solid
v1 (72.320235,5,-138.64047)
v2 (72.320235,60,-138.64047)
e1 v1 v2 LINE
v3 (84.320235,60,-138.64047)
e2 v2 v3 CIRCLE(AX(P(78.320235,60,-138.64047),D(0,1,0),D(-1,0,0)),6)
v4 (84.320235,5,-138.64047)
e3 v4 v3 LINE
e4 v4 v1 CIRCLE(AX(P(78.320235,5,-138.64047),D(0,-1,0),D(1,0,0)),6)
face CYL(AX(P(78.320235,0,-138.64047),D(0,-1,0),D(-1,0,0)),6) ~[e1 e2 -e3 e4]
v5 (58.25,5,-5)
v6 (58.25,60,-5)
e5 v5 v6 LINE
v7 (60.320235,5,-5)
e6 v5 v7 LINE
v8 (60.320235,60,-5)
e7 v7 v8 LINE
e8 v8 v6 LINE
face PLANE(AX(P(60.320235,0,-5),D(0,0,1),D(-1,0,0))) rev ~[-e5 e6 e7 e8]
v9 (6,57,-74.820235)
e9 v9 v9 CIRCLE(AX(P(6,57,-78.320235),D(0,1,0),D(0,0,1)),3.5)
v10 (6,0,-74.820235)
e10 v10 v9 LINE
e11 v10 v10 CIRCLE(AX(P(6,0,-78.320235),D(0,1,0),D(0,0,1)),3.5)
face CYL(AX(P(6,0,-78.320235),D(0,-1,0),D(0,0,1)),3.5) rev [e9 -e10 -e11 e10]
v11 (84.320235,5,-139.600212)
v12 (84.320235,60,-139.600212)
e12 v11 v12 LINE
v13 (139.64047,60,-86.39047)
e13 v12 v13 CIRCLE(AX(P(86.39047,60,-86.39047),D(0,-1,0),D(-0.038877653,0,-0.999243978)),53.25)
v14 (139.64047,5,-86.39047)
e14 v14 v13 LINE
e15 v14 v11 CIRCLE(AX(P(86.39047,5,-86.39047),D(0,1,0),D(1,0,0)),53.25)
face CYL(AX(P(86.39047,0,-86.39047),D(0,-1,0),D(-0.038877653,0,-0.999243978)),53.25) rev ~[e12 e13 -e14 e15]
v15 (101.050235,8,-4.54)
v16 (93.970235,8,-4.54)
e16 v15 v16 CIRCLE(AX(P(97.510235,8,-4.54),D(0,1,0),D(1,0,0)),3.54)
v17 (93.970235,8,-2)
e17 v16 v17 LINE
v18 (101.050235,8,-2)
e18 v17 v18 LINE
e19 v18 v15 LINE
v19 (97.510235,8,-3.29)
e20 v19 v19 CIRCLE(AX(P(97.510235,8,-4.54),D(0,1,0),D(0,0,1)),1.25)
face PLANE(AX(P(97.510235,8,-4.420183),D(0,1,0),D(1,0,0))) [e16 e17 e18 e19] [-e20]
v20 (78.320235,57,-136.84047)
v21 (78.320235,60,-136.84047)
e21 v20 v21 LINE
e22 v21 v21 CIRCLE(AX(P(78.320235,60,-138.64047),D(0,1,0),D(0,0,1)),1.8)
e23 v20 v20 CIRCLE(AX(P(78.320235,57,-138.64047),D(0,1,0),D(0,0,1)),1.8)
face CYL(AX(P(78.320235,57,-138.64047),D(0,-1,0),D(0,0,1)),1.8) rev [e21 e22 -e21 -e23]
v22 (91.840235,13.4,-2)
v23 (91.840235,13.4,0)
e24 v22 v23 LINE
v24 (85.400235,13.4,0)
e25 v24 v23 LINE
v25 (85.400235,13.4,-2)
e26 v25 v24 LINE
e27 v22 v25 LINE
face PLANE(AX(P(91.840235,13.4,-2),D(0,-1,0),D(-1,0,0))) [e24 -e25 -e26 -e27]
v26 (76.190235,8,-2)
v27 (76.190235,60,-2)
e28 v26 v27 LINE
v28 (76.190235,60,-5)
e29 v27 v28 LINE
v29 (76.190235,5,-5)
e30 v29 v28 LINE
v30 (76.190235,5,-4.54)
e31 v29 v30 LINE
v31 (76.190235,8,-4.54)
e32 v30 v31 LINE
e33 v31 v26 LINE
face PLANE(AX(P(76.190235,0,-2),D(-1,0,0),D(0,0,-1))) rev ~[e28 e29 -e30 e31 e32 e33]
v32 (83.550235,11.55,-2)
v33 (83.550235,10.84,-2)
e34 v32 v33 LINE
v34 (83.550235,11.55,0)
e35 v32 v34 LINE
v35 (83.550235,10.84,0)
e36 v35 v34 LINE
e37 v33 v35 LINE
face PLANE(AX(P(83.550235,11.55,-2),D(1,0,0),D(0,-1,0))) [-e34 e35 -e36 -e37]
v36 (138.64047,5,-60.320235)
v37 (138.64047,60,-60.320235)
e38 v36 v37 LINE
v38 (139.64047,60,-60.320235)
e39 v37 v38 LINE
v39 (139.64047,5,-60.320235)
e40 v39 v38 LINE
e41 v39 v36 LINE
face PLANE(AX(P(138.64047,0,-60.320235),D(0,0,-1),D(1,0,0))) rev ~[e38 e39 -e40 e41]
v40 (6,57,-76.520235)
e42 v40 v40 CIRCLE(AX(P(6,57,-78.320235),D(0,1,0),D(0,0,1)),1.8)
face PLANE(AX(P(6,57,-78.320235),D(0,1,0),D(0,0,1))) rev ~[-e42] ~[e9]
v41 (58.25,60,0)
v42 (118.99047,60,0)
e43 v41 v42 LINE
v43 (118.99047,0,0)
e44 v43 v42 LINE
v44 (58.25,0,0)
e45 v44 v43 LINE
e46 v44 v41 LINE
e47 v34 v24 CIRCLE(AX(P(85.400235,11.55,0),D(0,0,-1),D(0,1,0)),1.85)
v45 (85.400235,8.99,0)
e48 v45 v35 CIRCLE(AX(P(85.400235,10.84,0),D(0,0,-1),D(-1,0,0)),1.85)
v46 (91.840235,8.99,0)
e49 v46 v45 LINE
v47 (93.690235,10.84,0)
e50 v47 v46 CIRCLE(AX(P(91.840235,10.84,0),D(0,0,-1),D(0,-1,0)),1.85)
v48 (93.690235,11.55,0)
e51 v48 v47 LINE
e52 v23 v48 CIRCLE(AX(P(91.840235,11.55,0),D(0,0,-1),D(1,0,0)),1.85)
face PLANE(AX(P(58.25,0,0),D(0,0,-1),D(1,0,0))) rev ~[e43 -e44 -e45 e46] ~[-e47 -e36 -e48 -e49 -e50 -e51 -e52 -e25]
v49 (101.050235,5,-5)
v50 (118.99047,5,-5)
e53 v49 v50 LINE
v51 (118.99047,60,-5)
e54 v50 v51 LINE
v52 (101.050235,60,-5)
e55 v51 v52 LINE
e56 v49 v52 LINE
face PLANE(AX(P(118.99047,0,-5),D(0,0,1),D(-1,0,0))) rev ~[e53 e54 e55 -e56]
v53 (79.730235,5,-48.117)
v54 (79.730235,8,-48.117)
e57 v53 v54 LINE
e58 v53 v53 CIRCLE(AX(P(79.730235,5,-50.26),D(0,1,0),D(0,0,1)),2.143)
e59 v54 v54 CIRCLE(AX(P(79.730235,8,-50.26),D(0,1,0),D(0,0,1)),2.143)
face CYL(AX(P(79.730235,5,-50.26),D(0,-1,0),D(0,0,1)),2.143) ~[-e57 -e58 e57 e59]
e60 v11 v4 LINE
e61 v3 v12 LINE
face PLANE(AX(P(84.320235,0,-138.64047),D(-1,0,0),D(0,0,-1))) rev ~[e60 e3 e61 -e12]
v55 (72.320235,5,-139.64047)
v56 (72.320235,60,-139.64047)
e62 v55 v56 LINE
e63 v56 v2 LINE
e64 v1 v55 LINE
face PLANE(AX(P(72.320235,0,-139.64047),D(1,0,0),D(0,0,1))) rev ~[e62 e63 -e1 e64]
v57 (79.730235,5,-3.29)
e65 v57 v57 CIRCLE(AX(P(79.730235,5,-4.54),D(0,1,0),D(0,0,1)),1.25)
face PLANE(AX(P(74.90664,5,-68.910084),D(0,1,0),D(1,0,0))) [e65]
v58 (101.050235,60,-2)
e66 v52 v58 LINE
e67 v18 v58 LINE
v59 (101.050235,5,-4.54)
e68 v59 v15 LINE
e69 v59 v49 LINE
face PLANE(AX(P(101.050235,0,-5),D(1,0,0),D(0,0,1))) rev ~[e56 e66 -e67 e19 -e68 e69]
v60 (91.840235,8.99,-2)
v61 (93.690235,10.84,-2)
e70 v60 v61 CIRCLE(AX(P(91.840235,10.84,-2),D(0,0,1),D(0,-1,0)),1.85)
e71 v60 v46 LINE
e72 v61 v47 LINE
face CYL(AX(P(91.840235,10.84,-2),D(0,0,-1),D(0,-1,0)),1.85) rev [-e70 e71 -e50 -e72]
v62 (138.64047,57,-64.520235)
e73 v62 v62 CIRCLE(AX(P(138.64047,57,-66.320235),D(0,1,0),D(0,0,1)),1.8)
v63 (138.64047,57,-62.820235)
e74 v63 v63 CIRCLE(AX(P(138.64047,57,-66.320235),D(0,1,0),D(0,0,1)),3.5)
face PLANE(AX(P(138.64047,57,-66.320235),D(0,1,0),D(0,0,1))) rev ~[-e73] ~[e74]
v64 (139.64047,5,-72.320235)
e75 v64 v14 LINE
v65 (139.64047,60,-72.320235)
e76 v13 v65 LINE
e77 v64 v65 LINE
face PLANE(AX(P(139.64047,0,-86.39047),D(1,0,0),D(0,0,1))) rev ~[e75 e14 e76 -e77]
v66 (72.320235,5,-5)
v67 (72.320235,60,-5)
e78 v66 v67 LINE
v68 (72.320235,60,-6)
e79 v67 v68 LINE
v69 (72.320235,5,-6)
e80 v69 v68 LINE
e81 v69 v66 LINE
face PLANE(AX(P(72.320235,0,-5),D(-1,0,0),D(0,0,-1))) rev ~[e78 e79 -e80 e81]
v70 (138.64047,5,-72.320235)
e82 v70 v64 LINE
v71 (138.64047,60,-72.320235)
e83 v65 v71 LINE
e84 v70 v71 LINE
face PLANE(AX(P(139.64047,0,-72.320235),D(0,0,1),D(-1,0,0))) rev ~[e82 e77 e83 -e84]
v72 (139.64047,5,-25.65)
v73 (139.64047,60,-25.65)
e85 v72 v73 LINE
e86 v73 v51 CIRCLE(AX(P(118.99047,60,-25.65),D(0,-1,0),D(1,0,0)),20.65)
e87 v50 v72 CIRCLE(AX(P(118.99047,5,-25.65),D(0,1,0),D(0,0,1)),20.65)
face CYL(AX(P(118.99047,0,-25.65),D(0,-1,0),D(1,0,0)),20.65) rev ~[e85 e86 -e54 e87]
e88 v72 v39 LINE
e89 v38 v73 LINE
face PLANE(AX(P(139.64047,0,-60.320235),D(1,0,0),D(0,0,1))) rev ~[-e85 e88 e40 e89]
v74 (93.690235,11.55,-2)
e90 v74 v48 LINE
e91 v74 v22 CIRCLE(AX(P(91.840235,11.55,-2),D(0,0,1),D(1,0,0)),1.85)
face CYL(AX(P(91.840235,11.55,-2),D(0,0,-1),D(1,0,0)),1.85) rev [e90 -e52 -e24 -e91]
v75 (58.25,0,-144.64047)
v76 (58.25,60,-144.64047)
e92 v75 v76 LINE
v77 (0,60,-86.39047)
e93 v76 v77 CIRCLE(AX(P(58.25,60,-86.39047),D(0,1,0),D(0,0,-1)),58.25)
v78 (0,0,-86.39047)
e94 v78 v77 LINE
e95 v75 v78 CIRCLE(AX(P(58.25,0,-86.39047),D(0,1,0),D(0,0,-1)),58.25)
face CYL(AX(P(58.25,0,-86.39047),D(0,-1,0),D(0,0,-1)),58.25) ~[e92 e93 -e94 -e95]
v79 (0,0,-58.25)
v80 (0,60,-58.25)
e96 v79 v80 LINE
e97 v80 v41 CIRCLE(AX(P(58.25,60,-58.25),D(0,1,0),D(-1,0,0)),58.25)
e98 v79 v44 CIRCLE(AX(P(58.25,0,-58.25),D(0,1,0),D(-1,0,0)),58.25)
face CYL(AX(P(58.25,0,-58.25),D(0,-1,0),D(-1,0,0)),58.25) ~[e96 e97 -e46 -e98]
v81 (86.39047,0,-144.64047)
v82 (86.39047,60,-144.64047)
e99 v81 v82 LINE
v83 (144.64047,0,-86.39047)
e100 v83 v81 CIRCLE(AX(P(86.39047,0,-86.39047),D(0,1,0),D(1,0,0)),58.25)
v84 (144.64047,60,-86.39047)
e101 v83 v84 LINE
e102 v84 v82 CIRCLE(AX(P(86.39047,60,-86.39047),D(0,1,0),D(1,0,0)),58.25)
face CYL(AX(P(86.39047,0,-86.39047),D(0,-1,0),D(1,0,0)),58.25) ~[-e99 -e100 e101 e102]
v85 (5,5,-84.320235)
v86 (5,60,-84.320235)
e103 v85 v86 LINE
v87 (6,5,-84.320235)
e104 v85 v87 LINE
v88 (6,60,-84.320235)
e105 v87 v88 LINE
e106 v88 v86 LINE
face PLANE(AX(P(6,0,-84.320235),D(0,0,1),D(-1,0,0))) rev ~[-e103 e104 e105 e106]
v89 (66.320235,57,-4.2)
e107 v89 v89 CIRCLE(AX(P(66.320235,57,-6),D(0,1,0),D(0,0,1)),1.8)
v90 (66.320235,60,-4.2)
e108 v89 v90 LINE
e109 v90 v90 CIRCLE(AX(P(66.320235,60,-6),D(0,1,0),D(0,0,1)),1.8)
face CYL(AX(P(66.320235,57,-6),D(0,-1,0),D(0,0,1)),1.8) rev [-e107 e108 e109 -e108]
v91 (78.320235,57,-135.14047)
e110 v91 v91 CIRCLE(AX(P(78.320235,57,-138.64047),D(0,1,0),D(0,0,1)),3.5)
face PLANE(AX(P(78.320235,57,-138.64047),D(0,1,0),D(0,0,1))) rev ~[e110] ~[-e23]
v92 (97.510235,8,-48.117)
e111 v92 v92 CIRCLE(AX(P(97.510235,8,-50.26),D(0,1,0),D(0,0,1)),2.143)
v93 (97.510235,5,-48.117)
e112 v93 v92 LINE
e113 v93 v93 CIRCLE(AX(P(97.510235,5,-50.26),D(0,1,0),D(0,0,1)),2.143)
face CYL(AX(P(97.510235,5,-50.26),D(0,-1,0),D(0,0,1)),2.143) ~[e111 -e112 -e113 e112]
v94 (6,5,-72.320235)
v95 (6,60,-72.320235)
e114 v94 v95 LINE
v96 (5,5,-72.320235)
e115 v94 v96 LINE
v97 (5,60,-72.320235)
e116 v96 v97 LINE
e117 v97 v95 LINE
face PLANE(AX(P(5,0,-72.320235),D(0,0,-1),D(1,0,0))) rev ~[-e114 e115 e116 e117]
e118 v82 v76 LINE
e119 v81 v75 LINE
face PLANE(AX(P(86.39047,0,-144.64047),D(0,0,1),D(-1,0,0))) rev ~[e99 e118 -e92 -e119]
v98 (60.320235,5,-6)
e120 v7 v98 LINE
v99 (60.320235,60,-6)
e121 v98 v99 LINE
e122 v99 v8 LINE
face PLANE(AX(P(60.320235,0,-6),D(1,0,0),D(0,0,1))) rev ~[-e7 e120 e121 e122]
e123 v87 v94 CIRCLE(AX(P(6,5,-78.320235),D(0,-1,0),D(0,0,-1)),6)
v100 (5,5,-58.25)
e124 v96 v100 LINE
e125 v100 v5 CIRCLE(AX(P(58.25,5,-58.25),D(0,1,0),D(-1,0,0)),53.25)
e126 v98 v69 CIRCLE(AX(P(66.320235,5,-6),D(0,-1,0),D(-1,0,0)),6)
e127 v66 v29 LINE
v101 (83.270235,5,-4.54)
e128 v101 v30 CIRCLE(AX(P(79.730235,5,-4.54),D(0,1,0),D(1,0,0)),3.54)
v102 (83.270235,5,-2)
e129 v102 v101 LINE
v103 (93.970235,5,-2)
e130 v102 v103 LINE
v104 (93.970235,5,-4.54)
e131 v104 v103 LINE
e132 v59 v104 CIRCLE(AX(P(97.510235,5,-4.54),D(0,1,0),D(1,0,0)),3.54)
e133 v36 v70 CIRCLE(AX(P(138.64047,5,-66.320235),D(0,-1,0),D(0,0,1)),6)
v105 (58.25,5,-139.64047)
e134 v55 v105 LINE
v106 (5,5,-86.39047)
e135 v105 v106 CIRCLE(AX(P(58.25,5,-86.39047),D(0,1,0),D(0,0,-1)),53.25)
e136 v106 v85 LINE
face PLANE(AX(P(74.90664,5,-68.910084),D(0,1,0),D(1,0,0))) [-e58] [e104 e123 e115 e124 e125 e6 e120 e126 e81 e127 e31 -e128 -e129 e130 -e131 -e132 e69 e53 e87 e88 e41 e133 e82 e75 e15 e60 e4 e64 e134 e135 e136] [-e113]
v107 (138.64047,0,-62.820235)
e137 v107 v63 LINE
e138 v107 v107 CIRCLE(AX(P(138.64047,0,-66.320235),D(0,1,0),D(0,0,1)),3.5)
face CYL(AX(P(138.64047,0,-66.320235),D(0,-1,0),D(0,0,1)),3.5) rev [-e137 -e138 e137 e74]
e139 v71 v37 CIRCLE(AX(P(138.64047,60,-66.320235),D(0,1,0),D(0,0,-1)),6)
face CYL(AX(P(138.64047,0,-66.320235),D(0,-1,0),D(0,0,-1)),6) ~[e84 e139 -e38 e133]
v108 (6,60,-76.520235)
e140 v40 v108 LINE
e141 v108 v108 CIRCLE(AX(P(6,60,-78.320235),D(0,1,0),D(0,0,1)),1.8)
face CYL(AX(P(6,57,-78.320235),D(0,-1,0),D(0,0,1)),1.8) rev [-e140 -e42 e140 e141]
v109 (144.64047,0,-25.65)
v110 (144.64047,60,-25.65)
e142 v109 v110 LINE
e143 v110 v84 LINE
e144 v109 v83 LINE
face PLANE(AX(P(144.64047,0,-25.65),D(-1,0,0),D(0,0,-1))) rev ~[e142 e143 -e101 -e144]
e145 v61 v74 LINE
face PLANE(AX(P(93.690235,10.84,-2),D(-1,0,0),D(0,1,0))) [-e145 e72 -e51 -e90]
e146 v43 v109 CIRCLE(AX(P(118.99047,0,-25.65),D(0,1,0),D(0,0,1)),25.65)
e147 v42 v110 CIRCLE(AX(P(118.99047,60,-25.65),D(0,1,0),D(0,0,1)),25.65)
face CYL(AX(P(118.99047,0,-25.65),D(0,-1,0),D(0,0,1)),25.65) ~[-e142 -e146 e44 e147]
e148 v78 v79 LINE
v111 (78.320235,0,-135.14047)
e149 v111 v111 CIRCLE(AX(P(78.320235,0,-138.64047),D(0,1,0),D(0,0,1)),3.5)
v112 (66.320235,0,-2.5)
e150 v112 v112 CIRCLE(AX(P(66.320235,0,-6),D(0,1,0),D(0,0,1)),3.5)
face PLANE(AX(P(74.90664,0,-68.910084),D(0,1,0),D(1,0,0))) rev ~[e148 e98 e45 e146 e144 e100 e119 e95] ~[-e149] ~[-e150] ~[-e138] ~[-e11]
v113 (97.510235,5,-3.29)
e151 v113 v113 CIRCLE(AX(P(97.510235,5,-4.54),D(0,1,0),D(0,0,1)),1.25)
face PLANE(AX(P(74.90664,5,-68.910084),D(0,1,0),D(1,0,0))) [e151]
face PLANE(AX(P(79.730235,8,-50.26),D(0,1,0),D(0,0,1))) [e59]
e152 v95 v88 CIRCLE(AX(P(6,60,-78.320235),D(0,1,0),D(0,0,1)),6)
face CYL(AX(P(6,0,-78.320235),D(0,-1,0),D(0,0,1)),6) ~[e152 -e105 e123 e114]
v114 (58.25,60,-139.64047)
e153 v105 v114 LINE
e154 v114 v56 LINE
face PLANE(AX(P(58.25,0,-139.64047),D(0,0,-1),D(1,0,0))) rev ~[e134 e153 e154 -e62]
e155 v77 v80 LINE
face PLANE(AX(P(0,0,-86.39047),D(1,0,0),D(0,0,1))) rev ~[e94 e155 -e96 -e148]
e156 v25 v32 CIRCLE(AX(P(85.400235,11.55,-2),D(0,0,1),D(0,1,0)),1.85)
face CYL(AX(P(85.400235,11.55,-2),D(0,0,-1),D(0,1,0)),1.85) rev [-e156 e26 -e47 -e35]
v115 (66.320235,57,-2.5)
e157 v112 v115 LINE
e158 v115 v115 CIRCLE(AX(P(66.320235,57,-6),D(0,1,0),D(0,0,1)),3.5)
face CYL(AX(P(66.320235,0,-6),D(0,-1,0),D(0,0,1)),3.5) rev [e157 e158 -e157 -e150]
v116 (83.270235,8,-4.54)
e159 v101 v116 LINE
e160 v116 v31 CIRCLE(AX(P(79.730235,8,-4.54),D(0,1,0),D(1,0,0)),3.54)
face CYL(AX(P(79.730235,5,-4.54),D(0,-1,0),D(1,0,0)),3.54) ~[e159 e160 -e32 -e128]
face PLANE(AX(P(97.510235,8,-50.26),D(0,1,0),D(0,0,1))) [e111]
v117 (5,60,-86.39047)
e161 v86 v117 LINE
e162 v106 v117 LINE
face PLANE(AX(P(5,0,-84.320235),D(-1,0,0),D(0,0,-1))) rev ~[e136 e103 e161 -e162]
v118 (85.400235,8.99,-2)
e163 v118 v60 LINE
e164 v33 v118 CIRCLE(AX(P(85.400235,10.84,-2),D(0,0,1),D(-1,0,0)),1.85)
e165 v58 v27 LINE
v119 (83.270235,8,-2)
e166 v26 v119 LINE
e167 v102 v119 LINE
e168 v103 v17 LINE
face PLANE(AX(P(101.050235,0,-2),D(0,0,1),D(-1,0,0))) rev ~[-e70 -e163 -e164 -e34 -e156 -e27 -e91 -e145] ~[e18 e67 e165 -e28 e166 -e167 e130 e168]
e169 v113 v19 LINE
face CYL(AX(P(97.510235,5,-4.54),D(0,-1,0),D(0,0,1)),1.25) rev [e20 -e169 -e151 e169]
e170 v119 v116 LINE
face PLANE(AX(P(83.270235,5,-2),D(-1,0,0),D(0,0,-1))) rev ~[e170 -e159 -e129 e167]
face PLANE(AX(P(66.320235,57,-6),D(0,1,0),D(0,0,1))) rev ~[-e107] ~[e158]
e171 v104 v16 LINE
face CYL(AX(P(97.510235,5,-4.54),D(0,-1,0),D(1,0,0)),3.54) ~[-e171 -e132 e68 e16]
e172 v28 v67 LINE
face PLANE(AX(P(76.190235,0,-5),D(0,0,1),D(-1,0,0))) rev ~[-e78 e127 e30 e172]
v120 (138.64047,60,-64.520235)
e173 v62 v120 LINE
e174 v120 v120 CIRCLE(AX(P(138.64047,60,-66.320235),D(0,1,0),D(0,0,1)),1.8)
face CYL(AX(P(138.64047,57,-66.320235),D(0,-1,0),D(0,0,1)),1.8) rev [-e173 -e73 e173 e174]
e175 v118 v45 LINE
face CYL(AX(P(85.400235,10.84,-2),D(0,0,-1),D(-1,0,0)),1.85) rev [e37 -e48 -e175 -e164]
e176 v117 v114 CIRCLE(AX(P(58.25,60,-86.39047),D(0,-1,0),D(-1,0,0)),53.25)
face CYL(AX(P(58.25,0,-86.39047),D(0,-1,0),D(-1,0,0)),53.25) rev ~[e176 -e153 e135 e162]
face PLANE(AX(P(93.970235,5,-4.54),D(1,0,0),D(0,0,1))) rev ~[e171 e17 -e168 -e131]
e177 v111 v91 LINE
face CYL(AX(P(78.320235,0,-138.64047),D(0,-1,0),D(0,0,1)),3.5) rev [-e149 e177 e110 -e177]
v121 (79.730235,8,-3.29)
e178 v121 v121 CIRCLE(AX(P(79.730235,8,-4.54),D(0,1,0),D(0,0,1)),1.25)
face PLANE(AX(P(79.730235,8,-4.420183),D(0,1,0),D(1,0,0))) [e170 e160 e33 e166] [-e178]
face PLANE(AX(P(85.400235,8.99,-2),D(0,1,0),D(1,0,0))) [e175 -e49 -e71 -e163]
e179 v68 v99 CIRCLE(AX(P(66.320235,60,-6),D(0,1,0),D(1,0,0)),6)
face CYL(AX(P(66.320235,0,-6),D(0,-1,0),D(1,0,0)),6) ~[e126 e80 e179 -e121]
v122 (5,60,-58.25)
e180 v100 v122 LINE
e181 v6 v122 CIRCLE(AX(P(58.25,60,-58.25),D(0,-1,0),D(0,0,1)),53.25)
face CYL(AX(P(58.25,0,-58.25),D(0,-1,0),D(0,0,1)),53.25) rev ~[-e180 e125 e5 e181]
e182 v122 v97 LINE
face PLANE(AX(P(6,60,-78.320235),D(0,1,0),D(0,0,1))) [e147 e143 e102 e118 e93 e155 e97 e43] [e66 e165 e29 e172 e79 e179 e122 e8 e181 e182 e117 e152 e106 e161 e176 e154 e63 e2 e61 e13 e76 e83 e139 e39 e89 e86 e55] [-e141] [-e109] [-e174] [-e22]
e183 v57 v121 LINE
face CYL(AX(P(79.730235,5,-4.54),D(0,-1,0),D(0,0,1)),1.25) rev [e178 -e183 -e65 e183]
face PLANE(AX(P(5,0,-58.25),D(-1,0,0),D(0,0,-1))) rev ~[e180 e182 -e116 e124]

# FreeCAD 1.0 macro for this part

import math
import FreeCAD as App
import Part
import Sketcher

doc = App.newDocument("Part")
body = doc.addObject("PartDesign::Body", "Body")

# Sketch on XZ plane
sketch1 = body.newObject("Sketcher::SketchObject", "Sketch")
sketch1.AttachmentSupport = (doc.getObject("XZ_Plane"), [""])
sketch1.MapMode = "FlatFace"
sketch1.addGeometry(Part.ArcOfCircle(Part.Circle(App.Vector(58.2, -58.2, 0), App.Vector(0, 0, 1), 58.2), math.radians(90), math.radians(180)), False)
sketch1.addGeometry(Part.LineSegment(App.Vector(58.2, 0, 0), App.Vector(119, 0, 0)), False)
sketch1.addGeometry(Part.ArcOfCircle(Part.Circle(App.Vector(119, -25.7, 0), App.Vector(0, 0, 1), 25.7), math.radians(0), math.radians(90)), False)
sketch1.addGeometry(Part.LineSegment(App.Vector(144.6, -25.6, 0), App.Vector(144.6, -86.4, 0)), False)
sketch1.addGeometry(Part.ArcOfCircle(Part.Circle(App.Vector(86.4, -86.4, 0), App.Vector(0, 0, 1), 58.2), math.radians(-90), math.radians(0)), False)
sketch1.addGeometry(Part.LineSegment(App.Vector(86.4, -144.6, 0), App.Vector(58.2, -144.6, 0)), False)
sketch1.addGeometry(Part.ArcOfCircle(Part.Circle(App.Vector(58.2, -86.4, 0), App.Vector(0, 0, 1), 58.2), math.radians(180), math.radians(270)), False)
sketch1.addGeometry(Part.LineSegment(App.Vector(0, -86.4, 0), App.Vector(0, -58.2, 0)), False)
sketch1.addGeometry(Part.Circle(App.Vector(66.3, -6, 0), App.Vector(0, 0, 1), 3.5), False)
sketch1.addGeometry(Part.LineSegment(App.Vector(5, -84.3, 0), App.Vector(5, -86.4, 0)), False)
sketch1.addGeometry(Part.ArcOfCircle(Part.Circle(App.Vector(58.3, -86.4, 0), App.Vector(0, 0, 1), 53.3), math.radians(-180), math.radians(-90)), False)
sketch1.addGeometry(Part.LineSegment(App.Vector(58.2, -139.6, 0), App.Vector(72.3, -139.6, 0)), False)
sketch1.addGeometry(Part.LineSegment(App.Vector(72.3, -139.6, 0), App.Vector(72.3, -138.6, 0)), False)
sketch1.addGeometry(Part.ArcOfCircle(Part.Circle(App.Vector(78.3, -138.6, 0), App.Vector(0, 0, 1), 6), math.radians(0), math.radians(180)), False)
sketch1.addGeometry(Part.LineSegment(App.Vector(84.3, -138.6, 0), App.Vector(84.3, -139.6, 0)), False)
sketch1.addGeometry(Part.ArcOfCircle(Part.Circle(App.Vector(86.4, -86.4, 0), App.Vector(0, 0, 1), 53.2), math.radians(-92), math.radians(0)), False)
sketch1.addGeometry(Part.LineSegment(App.Vector(139.6, -86.4, 0), App.Vector(139.6, -72.3, 0)), False)
sketch1.addGeometry(Part.LineSegment(App.Vector(139.6, -72.3, 0), App.Vector(138.6, -72.3, 0)), False)
sketch1.addGeometry(Part.ArcOfCircle(Part.Circle(App.Vector(138.6, -66.3, 0), App.Vector(0, 0, 1), 6), math.radians(90), math.radians(270)), False)
sketch1.addGeometry(Part.LineSegment(App.Vector(138.6, -60.3, 0), App.Vector(139.6, -60.3, 0)), False)
sketch1.addGeometry(Part.LineSegment(App.Vector(139.6, -60.3, 0), App.Vector(139.6, -25.6, 0)), False)
sketch1.addGeometry(Part.ArcOfCircle(Part.Circle(App.Vector(119, -25.6, 0), App.Vector(0, 0, 1), 20.6), math.radians(0), math.radians(90)), False)
sketch1.addGeometry(Part.LineSegment(App.Vector(119, -5, 0), App.Vector(101.1, -5, 0)), False)
sketch1.addGeometry(Part.LineSegment(App.Vector(101.1, -5, 0), App.Vector(101.1, -2, 0)), False)
sketch1.addGeometry(Part.LineSegment(App.Vector(101.1, -2, 0), App.Vector(76.2, -2, 0)), False)
sketch1.addGeometry(Part.LineSegment(App.Vector(76.2, -2, 0), App.Vector(76.2, -5, 0)), False)
sketch1.addGeometry(Part.LineSegment(App.Vector(76.2, -5, 0), App.Vector(72.3, -5, 0)), False)
sketch1.addGeometry(Part.LineSegment(App.Vector(72.3, -5, 0), App.Vector(72.3, -6, 0)), False)
sketch1.addGeometry(Part.ArcOfCircle(Part.Circle(App.Vector(66.3, -6, 0), App.Vector(0, 0, 1), 6), math.radians(180), math.radians(360)), False)
sketch1.addGeometry(Part.LineSegment(App.Vector(60.3, -6, 0), App.Vector(60.3, -5, 0)), False)
sketch1.addGeometry(Part.LineSegment(App.Vector(60.3, -5, 0), App.Vector(58.2, -5, 0)), False)
sketch1.addGeometry(Part.ArcOfCircle(Part.Circle(App.Vector(58.3, -58.3, 0), App.Vector(0, 0, 1), 53.3), math.radians(90), math.radians(180)), False)
sketch1.addGeometry(Part.LineSegment(App.Vector(5, -58.2, 0), App.Vector(5, -72.3, 0)), False)
sketch1.addGeometry(Part.LineSegment(App.Vector(5, -72.3, 0), App.Vector(6, -72.3, 0)), False)
sketch1.addGeometry(Part.ArcOfCircle(Part.Circle(App.Vector(6, -78.3, 0), App.Vector(0, 0, 1), 6), math.radians(-90), math.radians(90)), False)
sketch1.addGeometry(Part.LineSegment(App.Vector(6, -84.3, 0), App.Vector(5, -84.3, 0)), False)
sketch1.addGeometry(Part.Circle(App.Vector(138.6, -66.3, 0), App.Vector(0, 0, 1), 3.5), False)
sketch1.addGeometry(Part.Circle(App.Vector(6, -78.3, 0), App.Vector(0, 0, 1), 3.5), False)
sketch1.addGeometry(Part.Circle(App.Vector(78.3, -138.6, 0), App.Vector(0, 0, 1), 3.5), False)
sketch1.addConstraint(Sketcher.Constraint("Tangent", 0, 1, 1, 1))
sketch1.addConstraint(Sketcher.Constraint("Tangent", 1, 2, 2, 2))
sketch1.addConstraint(Sketcher.Constraint("Tangent", 2, 1, 3, 1))
sketch1.addConstraint(Sketcher.Constraint("Tangent", 3, 2, 4, 2))
sketch1.addConstraint(Sketcher.Constraint("Tangent", 4, 1, 5, 1))
sketch1.addConstraint(Sketcher.Constraint("Tangent", 5, 2, 6, 2))
sketch1.addConstraint(Sketcher.Constraint("Tangent", 6, 1, 7, 1))
sketch1.addConstraint(Sketcher.Constraint("Tangent", 7, 2, 0, 2))
sketch1.addConstraint(Sketcher.Constraint("Tangent", 9, 2, 10, 1))
sketch1.addConstraint(Sketcher.Constraint("Tangent", 10, 2, 11, 1))
sketch1.addConstraint(Sketcher.Constraint("Coincident", 11, 2, 12, 1))
sketch1.addConstraint(Sketcher.Constraint("Tangent", 12, 2, 13, 2))
sketch1.addConstraint(Sketcher.Constraint("Tangent", 13, 1, 14, 1))
sketch1.addConstraint(Sketcher.Constraint("Coincident", 14, 2, 15, 1))
sketch1.addConstraint(Sketcher.Constraint("Tangent", 15, 2, 16, 1))
sketch1.addConstraint(Sketcher.Constraint("Coincident", 16, 2, 17, 1))
sketch1.addConstraint(Sketcher.Constraint("Tangent", 17, 2, 18, 2))
sketch1.addConstraint(Sketcher.Constraint("Tangent", 18, 1, 19, 1))
sketch1.addConstraint(Sketcher.Constraint("Coincident", 19, 2, 20, 1))
sketch1.addConstraint(Sketcher.Constraint("Tangent", 20, 2, 21, 1))
sketch1.addConstraint(Sketcher.Constraint("Tangent", 21, 2, 22, 1))
sketch1.addConstraint(Sketcher.Constraint("Coincident", 22, 2, 23, 1))
sketch1.addConstraint(Sketcher.Constraint("Coincident", 23, 2, 24, 1))
sketch1.addConstraint(Sketcher.Constraint("Coincident", 24, 2, 25, 1))
sketch1.addConstraint(Sketcher.Constraint("Coincident", 25, 2, 26, 1))
sketch1.addConstraint(Sketcher.Constraint("Coincident", 26, 2, 27, 1))
sketch1.addConstraint(Sketcher.Constraint("Tangent", 27, 2, 28, 2))
sketch1.addConstraint(Sketcher.Constraint("Tangent", 28, 1, 29, 1))
sketch1.addConstraint(Sketcher.Constraint("Coincident", 29, 2, 30, 1))
sketch1.addConstraint(Sketcher.Constraint("Tangent", 30, 2, 31, 1))
sketch1.addConstraint(Sketcher.Constraint("Tangent", 31, 2, 32, 1))
sketch1.addConstraint(Sketcher.Constraint("Coincident", 32, 2, 33, 1))
sketch1.addConstraint(Sketcher.Constraint("Tangent", 33, 2, 34, 2))
sketch1.addConstraint(Sketcher.Constraint("Tangent", 34, 1, 35, 1))
sketch1.addConstraint(Sketcher.Constraint("Coincident", 35, 2, 9, 1))
sketch1.addConstraint(Sketcher.Constraint("Horizontal", 1))
sketch1.addConstraint(Sketcher.Constraint("Vertical", 3))
sketch1.addConstraint(Sketcher.Constraint("Horizontal", 5))
sketch1.addConstraint(Sketcher.Constraint("Vertical", 7))
sketch1.addConstraint(Sketcher.Constraint("Vertical", 9))
sketch1.addConstraint(Sketcher.Constraint("Horizontal", 11))
sketch1.addConstraint(Sketcher.Constraint("Vertical", 12))
sketch1.addConstraint(Sketcher.Constraint("Vertical", 14))
sketch1.addConstraint(Sketcher.Constraint("Vertical", 16))
sketch1.addConstraint(Sketcher.Constraint("Horizontal", 17))
sketch1.addConstraint(Sketcher.Constraint("Horizontal", 19))
sketch1.addConstraint(Sketcher.Constraint("Vertical", 20))
sketch1.addConstraint(Sketcher.Constraint("Horizontal", 22))
sketch1.addConstraint(Sketcher.Constraint("Vertical", 23))
sketch1.addConstraint(Sketcher.Constraint("Horizontal", 24))
sketch1.addConstraint(Sketcher.Constraint("Vertical", 25))
sketch1.addConstraint(Sketcher.Constraint("Horizontal", 26))
sketch1.addConstraint(Sketcher.Constraint("Vertical", 27))
sketch1.addConstraint(Sketcher.Constraint("Vertical", 29))
sketch1.addConstraint(Sketcher.Constraint("Horizontal", 30))
sketch1.addConstraint(Sketcher.Constraint("Vertical", 32))
sketch1.addConstraint(Sketcher.Constraint("Horizontal", 33))
sketch1.addConstraint(Sketcher.Constraint("Horizontal", 35))
sketch1.addConstraint(Sketcher.Constraint("Coincident", 10, 3, 6, 3))
sketch1.addConstraint(Sketcher.Constraint("Coincident", 15, 3, 4, 3))
sketch1.addConstraint(Sketcher.Constraint("Coincident", 21, 3, 2, 3))
sketch1.addConstraint(Sketcher.Constraint("Coincident", 28, 3, 8, 3))
sketch1.addConstraint(Sketcher.Constraint("Coincident", 31, 3, 0, 3))
sketch1.addConstraint(Sketcher.Constraint("Coincident", 36, 3, 18, 3))
sketch1.addConstraint(Sketcher.Constraint("Coincident", 37, 3, 34, 3))
sketch1.addConstraint(Sketcher.Constraint("Coincident", 38, 3, 13, 3))
sketch1.addConstraint(Sketcher.Constraint("Equal", 0, 4))
sketch1.addConstraint(Sketcher.Constraint("Equal", 4, 6))
sketch1.addConstraint(Sketcher.Constraint("Equal", 10, 15))
sketch1.addConstraint(Sketcher.Constraint("Equal", 13, 18))
sketch1.addConstraint(Sketcher.Constraint("Equal", 18, 28))
sketch1.addConstraint(Sketcher.Constraint("Equal", 15, 31))
sketch1.addConstraint(Sketcher.Constraint("Equal", 28, 34))
sketch1.addConstraint(Sketcher.Constraint("Equal", 8, 36))
sketch1.addConstraint(Sketcher.Constraint("Equal", 36, 37))
sketch1.addConstraint(Sketcher.Constraint("Equal", 37, 38))
sketch1.addConstraint(Sketcher.Constraint("PointOnObject", 0, 1, -1))
sketch1.addConstraint(Sketcher.Constraint("PointOnObject", 6, 1, -2))
sketch1.addConstraint(Sketcher.Constraint("Horizontal", 22, 2, 25, 2))
sketch1.addConstraint(Sketcher.Constraint("Horizontal", 26, 2, 29, 2))
sketch1.addConstraint(Sketcher.Constraint("Horizontal", 17, 2, 32, 2))
sketch1.addConstraint(Sketcher.Constraint("Vertical", 12, 2, 26, 2))
sketch1.addConstraint(Sketcher.Constraint("Equal", 19, 33))
sketch1.addConstraint(Sketcher.Constraint("Equal", 1, 3))
sketch1.addConstraint(Sketcher.Constraint("Equal", 30, 9))
sketch1.addConstraint(Sketcher.Constraint("Equal", 35, 12))
sketch1.addConstraint(Sketcher.Constraint("Equal", 12, 27))
sketch1.addConstraint(Sketcher.Constraint("Equal", 16, 32))
sketch1.addConstraint(Sketcher.Constraint("Diameter", 8, 7.0))
sketch1.addConstraint(Sketcher.Constraint("Radius", 13, 6.0))
sketch1.addConstraint(Sketcher.Constraint("DistanceX", 17, 2, 17, 1, 1.0))
sketch1.addConstraint(Sketcher.Constraint("DistanceY", 23, 1, 23, 2, 3.0))
sketch1.addConstraint(Sketcher.Constraint("Radius", 0, 58.25))
sketch1.addConstraint(Sketcher.Constraint("Radius", 2, 25.65))
sketch1.addConstraint(Sketcher.Constraint("Radius", 10, 53.25))
sketch1.addConstraint(Sketcher.Constraint("DistanceX", 24, 2, 24, 1, 24.86))
sketch1.addConstraint(Sketcher.Constraint("DistanceX", 26, 2, 26, 1, 3.87))
sketch1.addConstraint(Sketcher.Constraint("DistanceX", 1, 1, 1, 2, 60.74047))
pad1 = body.newObject("PartDesign::Pad", "Pad")
pad1.Profile = sketch1
pad1.Length = 60
pad1.Reversed = True

# Sketch on XZ plane
sketch2 = body.newObject("Sketcher::SketchObject", "Sketch001")
sketch2.AttachmentSupport = (doc.getObject("XZ_Plane"), [""])
sketch2.MapMode = "FlatFace"
sketch2.addGeometry(Part.LineSegment(App.Vector(72.3, -139.6, 0), App.Vector(58.2, -139.6, 0)), False)
sketch2.addGeometry(Part.ArcOfCircle(Part.Circle(App.Vector(58.3, -86.4, 0), App.Vector(0, 0, 1), 53.3), math.radians(-180), math.radians(-90)), False)
sketch2.addGeometry(Part.LineSegment(App.Vector(5, -86.4, 0), App.Vector(5, -84.3, 0)), False)
sketch2.addGeometry(Part.LineSegment(App.Vector(5, -84.3, 0), App.Vector(6, -84.3, 0)), False)
sketch2.addGeometry(Part.ArcOfCircle(Part.Circle(App.Vector(6, -78.3, 0), App.Vector(0, 0, 1), 6), math.radians(-90), math.radians(90)), False)
sketch2.addGeometry(Part.LineSegment(App.Vector(6, -72.3, 0), App.Vector(5, -72.3, 0)), False)
sketch2.addGeometry(Part.LineSegment(App.Vector(5, -72.3, 0), App.Vector(5, -58.2, 0)), False)
sketch2.addGeometry(Part.ArcOfCircle(Part.Circle(App.Vector(58.3, -58.3, 0), App.Vector(0, 0, 1), 53.3), math.radians(90), math.radians(180)), False)
sketch2.addGeometry(Part.LineSegment(App.Vector(58.2, -5, 0), App.Vector(60.3, -5, 0)), False)
sketch2.addGeometry(Part.LineSegment(App.Vector(60.3, -5, 0), App.Vector(60.3, -6, 0)), False)
sketch2.addGeometry(Part.ArcOfCircle(Part.Circle(App.Vector(66.3, -6, 0), App.Vector(0, 0, 1), 6), math.radians(180), math.radians(360)), False)
sketch2.addGeometry(Part.LineSegment(App.Vector(72.3, -6, 0), App.Vector(72.3, -5, 0)), False)
sketch2.addGeometry(Part.LineSegment(App.Vector(72.3, -5, 0), App.Vector(76.2, -5, 0)), False)
sketch2.addGeometry(Part.LineSegment(App.Vector(76.2, -5, 0), App.Vector(76.2, -2, 0)), False)
sketch2.addGeometry(Part.LineSegment(App.Vector(76.2, -2, 0), App.Vector(101.1, -2, 0)), False)
sketch2.addGeometry(Part.LineSegment(App.Vector(101.1, -2, 0), App.Vector(101.1, -5, 0)), False)
sketch2.addGeometry(Part.LineSegment(App.Vector(101.1, -5, 0), App.Vector(119, -5, 0)), False)
sketch2.addGeometry(Part.ArcOfCircle(Part.Circle(App.Vector(119, -25.6, 0), App.Vector(0, 0, 1), 20.6), math.radians(0), math.radians(90)), False)
sketch2.addGeometry(Part.LineSegment(App.Vector(139.6, -25.6, 0), App.Vector(139.6, -60.3, 0)), False)
sketch2.addGeometry(Part.LineSegment(App.Vector(139.6, -60.3, 0), App.Vector(138.6, -60.3, 0)), False)
sketch2.addGeometry(Part.ArcOfCircle(Part.Circle(App.Vector(138.6, -66.3, 0), App.Vector(0, 0, 1), 6), math.radians(90), math.radians(270)), False)
sketch2.addGeometry(Part.LineSegment(App.Vector(138.6, -72.3, 0), App.Vector(139.6, -72.3, 0)), False)
sketch2.addGeometry(Part.LineSegment(App.Vector(139.6, -72.3, 0), App.Vector(139.6, -86.4, 0)), False)
sketch2.addGeometry(Part.ArcOfCircle(Part.Circle(App.Vector(86.4, -86.4, 0), App.Vector(0, 0, 1), 53.2), math.radians(-92), math.radians(0)), False)
sketch2.addGeometry(Part.LineSegment(App.Vector(84.3, -139.6, 0), App.Vector(84.3, -138.6, 0)), False)
sketch2.addGeometry(Part.ArcOfCircle(Part.Circle(App.Vector(78.3, -138.6, 0), App.Vector(0, 0, 1), 6), math.radians(0), math.radians(180)), False)
sketch2.addGeometry(Part.LineSegment(App.Vector(72.3, -138.6, 0), App.Vector(72.3, -139.6, 0)), False)
sketch2.addConstraint(Sketcher.Constraint("Tangent", 0, 2, 1, 2))
sketch2.addConstraint(Sketcher.Constraint("Tangent", 1, 1, 2, 1))
sketch2.addConstraint(Sketcher.Constraint("Coincident", 2, 2, 3, 1))
sketch2.addConstraint(Sketcher.Constraint("Tangent", 3, 2, 4, 1))
sketch2.addConstraint(Sketcher.Constraint("Tangent", 4, 2, 5, 1))
sketch2.addConstraint(Sketcher.Constraint("Coincident", 5, 2, 6, 1))
sketch2.addConstraint(Sketcher.Constraint("Tangent", 6, 2, 7, 2))
sketch2.addConstraint(Sketcher.Constraint("Tangent", 7, 1, 8, 1))
sketch2.addConstraint(Sketcher.Constraint("Coincident", 8, 2, 9, 1))
sketch2.addConstraint(Sketcher.Constraint("Tangent", 9, 2, 10, 1))
sketch2.addConstraint(Sketcher.Constraint("Tangent", 10, 2, 11, 1))
sketch2.addConstraint(Sketcher.Constraint("Coincident", 11, 2, 12, 1))
sketch2.addConstraint(Sketcher.Constraint("Coincident", 12, 2, 13, 1))
sketch2.addConstraint(Sketcher.Constraint("Coincident", 13, 2, 14, 1))
sketch2.addConstraint(Sketcher.Constraint("Coincident", 14, 2, 15, 1))
sketch2.addConstraint(Sketcher.Constraint("Coincident", 15, 2, 16, 1))
sketch2.addConstraint(Sketcher.Constraint("Tangent", 16, 2, 17, 2))
sketch2.addConstraint(Sketcher.Constraint("Tangent", 17, 1, 18, 1))
sketch2.addConstraint(Sketcher.Constraint("Coincident", 18, 2, 19, 1))
sketch2.addConstraint(Sketcher.Constraint("Tangent", 19, 2, 20, 1))
sketch2.addConstraint(Sketcher.Constraint("Tangent", 20, 2, 21, 1))
sketch2.addConstraint(Sketcher.Constraint("Coincident", 21, 2, 22, 1))
sketch2.addConstraint(Sketcher.Constraint("Tangent", 22, 2, 23, 2))
sketch2.addConstraint(Sketcher.Constraint("Coincident", 23, 1, 24, 1))
sketch2.addConstraint(Sketcher.Constraint("Tangent", 24, 2, 25, 1))
sketch2.addConstraint(Sketcher.Constraint("Tangent", 25, 2, 26, 1))
sketch2.addConstraint(Sketcher.Constraint("Coincident", 26, 2, 0, 1))
sketch2.addConstraint(Sketcher.Constraint("Horizontal", 0))
sketch2.addConstraint(Sketcher.Constraint("Vertical", 2))
sketch2.addConstraint(Sketcher.Constraint("Horizontal", 3))
sketch2.addConstraint(Sketcher.Constraint("Horizontal", 5))
sketch2.addConstraint(Sketcher.Constraint("Vertical", 6))
sketch2.addConstraint(Sketcher.Constraint("Horizontal", 8))
sketch2.addConstraint(Sketcher.Constraint("Vertical", 9))
sketch2.addConstraint(Sketcher.Constraint("Vertical", 11))
sketch2.addConstraint(Sketcher.Constraint("Horizontal", 12))
sketch2.addConstraint(Sketcher.Constraint("Vertical", 13))
sketch2.addConstraint(Sketcher.Constraint("Horizontal", 14))
sketch2.addConstraint(Sketcher.Constraint("Vertical", 15))
sketch2.addConstraint(Sketcher.Constraint("Horizontal", 16))
sketch2.addConstraint(Sketcher.Constraint("Vertical", 18))
sketch2.addConstraint(Sketcher.Constraint("Horizontal", 19))
sketch2.addConstraint(Sketcher.Constraint("Horizontal", 21))
sketch2.addConstraint(Sketcher.Constraint("Vertical", 22))
sketch2.addConstraint(Sketcher.Constraint("Vertical", 24))
sketch2.addConstraint(Sketcher.Constraint("Vertical", 26))
sketch2.addConstraint(Sketcher.Constraint("Equal", 1, 7))
sketch2.addConstraint(Sketcher.Constraint("Equal", 4, 10))
sketch2.addConstraint(Sketcher.Constraint("Equal", 10, 20))
sketch2.addConstraint(Sketcher.Constraint("Equal", 7, 23))
sketch2.addConstraint(Sketcher.Constraint("Equal", 20, 25))
sketch2.addConstraint(Sketcher.Constraint("Horizontal", 1, 3, 23, 3))
sketch2.addConstraint(Sketcher.Constraint("Horizontal", 8, 2, 11, 2))
sketch2.addConstraint(Sketcher.Constraint("Horizontal", 12, 2, 15, 2))
sketch2.addConstraint(Sketcher.Constraint("Horizontal", 5, 2, 20, 2))
sketch2.addConstraint(Sketcher.Constraint("Vertical", 1, 3, 7, 3))
sketch2.addConstraint(Sketcher.Constraint("Vertical", 18, 2, 21, 2))
sketch2.addConstraint(Sketcher.Constraint("Vertical", 11, 2, 25, 2))
sketch2.addConstraint(Sketcher.Constraint("Equal", 5, 19))
sketch2.addConstraint(Sketcher.Constraint("Equal", 8, 2))
sketch2.addConstraint(Sketcher.Constraint("Equal", 0, 6))
sketch2.addConstraint(Sketcher.Constraint("Equal", 21, 9))
sketch2.addConstraint(Sketcher.Constraint("Equal", 11, 26))
sketch2.addConstraint(Sketcher.Constraint("Radius", 4, 6.0))
sketch2.addConstraint(Sketcher.Constraint("DistanceX", 3, 1, 3, 2, 1.0))
sketch2.addConstraint(Sketcher.Constraint("DistanceY", 13, 1, 13, 2, 3.0))
sketch2.addConstraint(Sketcher.Constraint("Radius", 1, 53.25))
sketch2.addConstraint(Sketcher.Constraint("Radius", 17, 20.65))
sketch2.addConstraint(Sketcher.Constraint("DistanceX", -1, 1, 4, 3, 6.0))
sketch2.addConstraint(Sketcher.Constraint("DistanceY", 10, 3, -1, 1, 6.0))
sketch2.addConstraint(Sketcher.Constraint("DistanceX", 12, 1, 12, 2, 3.87))
sketch2.addConstraint(Sketcher.Constraint("DistanceX", 14, 1, 14, 2, 24.86))
sketch2.addConstraint(Sketcher.Constraint("DistanceY", 24, 1, 24, 2, 0.959742))
sketch2.addConstraint(Sketcher.Constraint("DistanceX", 0, 2, 0, 1, 14.070235))
pad2 = body.newObject("PartDesign::Pad", "Pad001")
pad2.Profile = sketch2
pad2.Length = 5
pad2.Reversed = True

# Sketch on XZ plane
sketch3 = body.newObject("Sketcher::SketchObject", "Sketch002")
sketch3.AttachmentSupport = (doc.getObject("XZ_Plane"), [""])
sketch3.MapMode = "FlatFace"
sketch3.AttachmentOffset = App.Placement(App.Vector(0, 0, -5), App.Rotation())
sketch3.addGeometry(Part.LineSegment(App.Vector(101.1, -2, 0), App.Vector(101.1, -4.5, 0)), False)
sketch3.addGeometry(Part.ArcOfCircle(Part.Circle(App.Vector(97.5, -4.5, 0), App.Vector(0, 0, 1), 3.5), math.radians(180), math.radians(360)), False)
sketch3.addGeometry(Part.LineSegment(App.Vector(94, -4.5, 0), App.Vector(94, -2, 0)), False)
sketch3.addGeometry(Part.LineSegment(App.Vector(94, -2, 0), App.Vector(101.1, -2, 0)), False)
sketch3.addGeometry(Part.Circle(App.Vector(97.5, -4.5, 0), App.Vector(0, 0, 1), 1.2), False)
sketch3.addGeometry(Part.ArcOfCircle(Part.Circle(App.Vector(79.7, -4.5, 0), App.Vector(0, 0, 1), 3.5), math.radians(180), math.radians(360)), False)
sketch3.addGeometry(Part.LineSegment(App.Vector(76.2, -4.5, 0), App.Vector(76.2, -2, 0)), False)
sketch3.addGeometry(Part.LineSegment(App.Vector(76.2, -2, 0), App.Vector(83.3, -2, 0)), False)
sketch3.addGeometry(Part.LineSegment(App.Vector(83.3, -2, 0), App.Vector(83.3, -4.5, 0)), False)
sketch3.addGeometry(Part.Circle(App.Vector(79.7, -4.5, 0), App.Vector(0, 0, 1), 1.2), False)
sketch3.addGeometry(Part.Circle(App.Vector(79.7, -50.3, 0), App.Vector(0, 0, 1), 2.1), False)
sketch3.addGeometry(Part.Circle(App.Vector(97.5, -50.3, 0), App.Vector(0, 0, 1), 2.1), False)
sketch3.addConstraint(Sketcher.Constraint("Tangent", 0, 2, 1, 2))
sketch3.addConstraint(Sketcher.Constraint("Tangent", 1, 1, 2, 1))
sketch3.addConstraint(Sketcher.Constraint("Coincident", 2, 2, 3, 1))
sketch3.addConstraint(Sketcher.Constraint("Coincident", 3, 2, 0, 1))
sketch3.addConstraint(Sketcher.Constraint("Tangent", 5, 1, 6, 1))
sketch3.addConstraint(Sketcher.Constraint("Coincident", 6, 2, 7, 1))
sketch3.addConstraint(Sketcher.Constraint("Coincident", 7, 2, 8, 1))
sketch3.addConstraint(Sketcher.Constraint("Tangent", 8, 2, 5, 2))
sketch3.addConstraint(Sketcher.Constraint("Vertical", 0))
sketch3.addConstraint(Sketcher.Constraint("Vertical", 2))
sketch3.addConstraint(Sketcher.Constraint("Horizontal", 3))
sketch3.addConstraint(Sketcher.Constraint("Vertical", 6))
sketch3.addConstraint(Sketcher.Constraint("Horizontal", 7))
sketch3.addConstraint(Sketcher.Constraint("Vertical", 8))
sketch3.addConstraint(Sketcher.Constraint("Coincident", 4, 3, 1, 3))
sketch3.addConstraint(Sketcher.Constraint("Coincident", 9, 3, 5, 3))
sketch3.addConstraint(Sketcher.Constraint("Equal", 1, 5))
sketch3.addConstraint(Sketcher.Constraint("Equal", 4, 9))
sketch3.addConstraint(Sketcher.Constraint("Equal", 10, 11))
sketch3.addConstraint(Sketcher.Constraint("Horizontal", 4, 3, 5, 3))
sketch3.addConstraint(Sketcher.Constraint("Horizontal", 10, 3, 11, 3))
sketch3.addConstraint(Sketcher.Constraint("Horizontal", 3, 2, 6, 2))
sketch3.addConstraint(Sketcher.Constraint("Vertical", 9, 3, 10, 3))
sketch3.addConstraint(Sketcher.Constraint("Vertical", 4, 3, 11, 3))
sketch3.addConstraint(Sketcher.Constraint("Diameter", 4, 2.5))
sketch3.addConstraint(Sketcher.Constraint("Radius", 1, 3.54))
sketch3.addConstraint(Sketcher.Constraint("Diameter", 10, 4.286))
sketch3.addConstraint(Sketcher.Constraint("DistanceY", 2, 2, -1, 1, 2.0))
sketch3.addConstraint(Sketcher.Constraint("DistanceY", 0, 2, 0, 1, 2.54))
sketch3.addConstraint(Sketcher.Constraint("DistanceX", 7, 2, 2, 2, 10.7))
sketch3.addConstraint(Sketcher.Constraint("DistanceY", 10, 3, -1, 1, 50.26))
sketch3.addConstraint(Sketcher.Constraint("DistanceX", -1, 1, 1, 3, 97.510235))
pad3 = body.newObject("PartDesign::Pad", "Pad002")
pad3.Profile = sketch3
pad3.Length = 3
pad3.Reversed = True

# Sketch on XY plane
sketch4 = body.newObject("Sketcher::SketchObject", "Sketch003")
sketch4.AttachmentSupport = (doc.getObject("XY_Plane"), [""])
sketch4.MapMode = "FlatFace"
sketch4.AttachmentOffset = App.Placement(App.Vector(0, 0, -2), App.Rotation())
sketch4.addGeometry(Part.LineSegment(App.Vector(85.4, 13.4, 0), App.Vector(91.8, 13.4, 0)), False)
sketch4.addGeometry(Part.ArcOfCircle(Part.Circle(App.Vector(91.8, 11.5, 0), App.Vector(0, 0, 1), 1.9), math.radians(0), math.radians(90)), False)
sketch4.addGeometry(Part.LineSegment(App.Vector(93.7, 11.6, 0), App.Vector(93.7, 10.8, 0)), False)
sketch4.addGeometry(Part.ArcOfCircle(Part.Circle(App.Vector(91.8, 10.8, 0), App.Vector(0, 0, 1), 1.9), math.radians(-90), math.radians(0)), False)
sketch4.addGeometry(Part.LineSegment(App.Vector(91.8, 9, 0), App.Vector(85.4, 9, 0)), False)
sketch4.addGeometry(Part.ArcOfCircle(Part.Circle(App.Vector(85.4, 10.8, 0), App.Vector(0, 0, 1), 1.9), math.radians(-180), math.radians(-90)), False)
sketch4.addGeometry(Part.LineSegment(App.Vector(83.6, 10.8, 0), App.Vector(83.6, 11.6, 0)), False)
sketch4.addGeometry(Part.ArcOfCircle(Part.Circle(App.Vector(85.4, 11.5, 0), App.Vector(0, 0, 1), 1.9), math.radians(90), math.radians(180)), False)
sketch4.addConstraint(Sketcher.Constraint("Tangent", 0, 2, 1, 2))
sketch4.addConstraint(Sketcher.Constraint("Tangent", 1, 1, 2, 1))
sketch4.addConstraint(Sketcher.Constraint("Tangent", 2, 2, 3, 2))
sketch4.addConstraint(Sketcher.Constraint("Tangent", 3, 1, 4, 1))
sketch4.addConstraint(Sketcher.Constraint("Tangent", 4, 2, 5, 2))
sketch4.addConstraint(Sketcher.Constraint("Tangent", 5, 1, 6, 1))
sketch4.addConstraint(Sketcher.Constraint("Tangent", 6, 2, 7, 2))
sketch4.addConstraint(Sketcher.Constraint("Tangent", 7, 1, 0, 1))
sketch4.addConstraint(Sketcher.Constraint("Horizontal", 0))
sketch4.addConstraint(Sketcher.Constraint("Vertical", 2))
sketch4.addConstraint(Sketcher.Constraint("Horizontal", 4))
sketch4.addConstraint(Sketcher.Constraint("Vertical", 6))
sketch4.addConstraint(Sketcher.Constraint("Equal", 1, 3))
sketch4.addConstraint(Sketcher.Constraint("Equal", 3, 5))
sketch4.addConstraint(Sketcher.Constraint("Equal", 5, 7))
sketch4.addConstraint(Sketcher.Constraint("Radius", 1, 1.85))
sketch4.addConstraint(Sketcher.Constraint("DistanceX", 0, 1, 0, 2, 6.44))
sketch4.addConstraint(Sketcher.Constraint("DistanceY", 2, 2, 2, 1, 0.71))
sketch4.addConstraint(Sketcher.Constraint("DistanceY", -1, 1, 0, 2, 13.4))
sketch4.addConstraint(Sketcher.Constraint("DistanceX", -1, 1, 1, 3, 91.840235))
pocket1 = body.newObject("PartDesign::Pocket", "Pocket")
pocket1.Profile = sketch4
pocket1.Type = "UpToFirst"
pocket1.Reversed = True

# Sketch on XZ plane
sketch5 = body.newObject("Sketcher::SketchObject", "Sketch004")
sketch5.AttachmentSupport = (doc.getObject("XZ_Plane"), [""])
sketch5.MapMode = "FlatFace"
sketch5.AttachmentOffset = App.Placement(App.Vector(0, 0, -57), App.Rotation())
sketch5.addGeometry(Part.Circle(App.Vector(6, -78.3, 0), App.Vector(0, 0, 1), 3.5), False)
sketch5.addGeometry(Part.Circle(App.Vector(6, -78.3, 0), App.Vector(0, 0, 1), 1.8), False)
sketch5.addGeometry(Part.Circle(App.Vector(78.3, -138.6, 0), App.Vector(0, 0, 1), 3.5), False)
sketch5.addGeometry(Part.Circle(App.Vector(78.3, -138.6, 0), App.Vector(0, 0, 1), 1.8), False)
sketch5.addGeometry(Part.Circle(App.Vector(138.6, -66.3, 0), App.Vector(0, 0, 1), 3.5), False)
sketch5.addGeometry(Part.Circle(App.Vector(138.6, -66.3, 0), App.Vector(0, 0, 1), 1.8), False)
sketch5.addGeometry(Part.Circle(App.Vector(66.3, -6, 0), App.Vector(0, 0, 1), 3.5), False)
sketch5.addGeometry(Part.Circle(App.Vector(66.3, -6, 0), App.Vector(0, 0, 1), 1.8), False)
sketch5.addConstraint(Sketcher.Constraint("Coincident", 1, 3, 0, 3))
sketch5.addConstraint(Sketcher.Constraint("Coincident", 3, 3, 2, 3))
sketch5.addConstraint(Sketcher.Constraint("Coincident", 5, 3, 4, 3))
sketch5.addConstraint(Sketcher.Constraint("Coincident", 7, 3, 6, 3))
sketch5.addConstraint(Sketcher.Constraint("Equal", 0, 2))
sketch5.addConstraint(Sketcher.Constraint("Equal", 1, 3))
sketch5.addConstraint(Sketcher.Constraint("Equal", 2, 4))
sketch5.addConstraint(Sketcher.Constraint("Equal", 3, 5))
sketch5.addConstraint(Sketcher.Constraint("Equal", 4, 6))
sketch5.addConstraint(Sketcher.Constraint("Equal", 5, 7))
sketch5.addConstraint(Sketcher.Constraint("Diameter", 0, 7.0))
sketch5.addConstraint(Sketcher.Constraint("Diameter", 1, 3.6))
sketch5.addConstraint(Sketcher.Constraint("DistanceX", -1, 1, 0, 3, 6.0))
sketch5.addConstraint(Sketcher.Constraint("DistanceY", 6, 3, -1, 1, 6.0))
sketch5.addConstraint(Sketcher.Constraint("DistanceY", 0, 3, 4, 3, 12.0))
sketch5.addConstraint(Sketcher.Constraint("DistanceX", 6, 3, 2, 3, 12.0))
sketch5.addConstraint(Sketcher.Constraint("DistanceY", 2, 3, -1, 1, 138.64047))
sketch5.addConstraint(Sketcher.Constraint("DistanceX", -1, 1, 4, 3, 138.64047))
sketch5.addConstraint(Sketcher.Constraint("DistanceY", 0, 3, -1, 1, 78.320235))
sketch5.addConstraint(Sketcher.Constraint("DistanceX", -1, 1, 2, 3, 78.320235))
pad4 = body.newObject("PartDesign::Pad", "Pad003")
pad4.Profile = sketch5
pad4.Length = 3
pad4.Reversed = True

doc.recompute()
